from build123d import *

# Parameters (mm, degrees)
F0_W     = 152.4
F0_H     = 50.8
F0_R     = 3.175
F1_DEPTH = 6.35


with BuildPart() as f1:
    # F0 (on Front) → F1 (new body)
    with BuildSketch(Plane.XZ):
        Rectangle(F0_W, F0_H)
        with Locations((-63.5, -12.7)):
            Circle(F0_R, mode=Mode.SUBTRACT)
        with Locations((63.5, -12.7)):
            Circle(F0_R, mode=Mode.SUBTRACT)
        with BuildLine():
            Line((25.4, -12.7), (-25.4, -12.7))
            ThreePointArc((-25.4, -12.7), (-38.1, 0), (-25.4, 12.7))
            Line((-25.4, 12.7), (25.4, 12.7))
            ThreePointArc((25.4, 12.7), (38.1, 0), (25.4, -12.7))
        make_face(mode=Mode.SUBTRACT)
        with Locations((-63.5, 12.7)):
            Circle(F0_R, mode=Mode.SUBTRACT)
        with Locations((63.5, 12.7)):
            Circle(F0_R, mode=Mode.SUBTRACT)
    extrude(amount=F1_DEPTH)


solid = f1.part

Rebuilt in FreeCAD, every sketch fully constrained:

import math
import FreeCAD as App
import Part
import Sketcher
Q = App.Units.Quantity

doc = App.newDocument("Part")
params = doc.addObject("Spreadsheet::Sheet", "Params")
for row, (alias, value) in enumerate([
    ("sketch1_radius", "0.5 in"),
    ("sketch1_diameter", "0.25 in"),
    ("sketch1_width", "6 in"),
    ("sketch1_width2", "2 in"),
    ("pad1_length", "0.25 in"),
], start=1):
    params.set(f"A{row}", alias)
    params.set(f"B{row}", "=" + value)
    params.setAlias(f"B{row}", alias)

body = doc.addObject("PartDesign::Body", "Body")

sketch1 = body.newObject("Sketcher::SketchObject", "Sketch")
sketch1.AttachmentSupport = (doc.getObject("XZ_Plane"), [""])
sketch1.MapMode = "FlatFace"
sketch1.addGeometry([
    Part.LineSegment(App.Vector(-76.2, 25.4, 0), App.Vector(-76.2, -25.4, 0)),
    Part.LineSegment(App.Vector(-76.2, -25.4, 0), App.Vector(76.2, -25.4, 0)),
    Part.LineSegment(App.Vector(76.2, -25.4, 0), App.Vector(76.2, 25.4, 0)),
    Part.LineSegment(App.Vector(76.2, 25.4, 0), App.Vector(-76.2, 25.4, 0)),
    Part.Circle(App.Vector(-63.5, -12.7, 0), App.Vector(0, 0, 1), 3.2),
    Part.Circle(App.Vector(63.5, -12.7, 0), App.Vector(0, 0, 1), 3.2),
    Part.Circle(App.Vector(-63.5, 12.7, 0), App.Vector(0, 0, 1), 3.2),
    Part.ArcOfCircle(Part.Circle(App.Vector(25.4, 0, 0), App.Vector(0, 0, 1), 12.7), math.radians(-90), math.radians(90)),
    Part.LineSegment(App.Vector(25.4, -12.7, 0), App.Vector(-25.4, -12.7, 0)),
    Part.ArcOfCircle(Part.Circle(App.Vector(-25.4, 0, 0), App.Vector(0, 0, 1), 12.7), math.radians(90), math.radians(270)),
    Part.LineSegment(App.Vector(-25.4, 12.7, 0), App.Vector(25.4, 12.7, 0)),
    Part.Circle(App.Vector(63.5, 12.7, 0), App.Vector(0, 0, 1), 3.2),
], False)
sketch1.addConstraint([
    Sketcher.Constraint("Coincident", 0, 2, 1, 1),
    Sketcher.Constraint("Coincident", 1, 2, 2, 1),
    Sketcher.Constraint("Coincident", 2, 2, 3, 1),
    Sketcher.Constraint("Coincident", 3, 2, 0, 1),
    Sketcher.Constraint("Tangent", 7, 1, 8, 1),
    Sketcher.Constraint("Tangent", 8, 2, 9, 2),
    Sketcher.Constraint("Tangent", 9, 1, 10, 1),
    Sketcher.Constraint("Tangent", 10, 2, 7, 2),
    Sketcher.Constraint("Vertical", 0),
    Sketcher.Constraint("Horizontal", 1),
    Sketcher.Constraint("Vertical", 2),
    Sketcher.Constraint("Horizontal", 3),
    Sketcher.Constraint("Horizontal", 8),
    Sketcher.Constraint("Horizontal", 10),
    Sketcher.Constraint("Equal", 4, 5),
    Sketcher.Constraint("Equal", 5, 6),
    Sketcher.Constraint("Equal", 6, 11),
    Sketcher.Constraint("Symmetric", 5, 3, 6, 3, -1, 1),
    Sketcher.Constraint("Symmetric", 7, 3, 9, 3, -1, 1),
    Sketcher.Constraint("Symmetric", 4, 3, 11, 3, -1, 1),
    Sketcher.Constraint("Symmetric", 0, 2, 2, 2, -1, 1),
    Sketcher.Constraint("Symmetric", 4, 3, 5, 3, -2),
    Sketcher.Constraint("Horizontal", 5, 3, 7, 1),
    Sketcher.Constraint("Equal", 10, 0),
    Sketcher.Constraint("Radius", 7, Q("0.5 in")),
    Sketcher.Constraint("Diameter", 4, Q("0.25 in")),
    Sketcher.Constraint("DistanceX", 1, 1, 1, 2, Q("6 in")),
    Sketcher.Constraint("DistanceX", 8, 2, 8, 1, Q("2 in")),
    Sketcher.Constraint("DistanceX", 4, 3, 5, 3, Q("5 in")),
])
sketch1.setExpression("Constraints[24]", "Params.sketch1_radius")
sketch1.setExpression("Constraints[25]", "Params.sketch1_diameter")
sketch1.setExpression("Constraints[26]", "Params.sketch1_width")
sketch1.setExpression("Constraints[27]", "Params.sketch1_width2")
pad1 = body.newObject("PartDesign::Pad", "Pad")
pad1.Profile = sketch1
pad1.setExpression("Length", "Params.pad1_length")

doc.recompute()
